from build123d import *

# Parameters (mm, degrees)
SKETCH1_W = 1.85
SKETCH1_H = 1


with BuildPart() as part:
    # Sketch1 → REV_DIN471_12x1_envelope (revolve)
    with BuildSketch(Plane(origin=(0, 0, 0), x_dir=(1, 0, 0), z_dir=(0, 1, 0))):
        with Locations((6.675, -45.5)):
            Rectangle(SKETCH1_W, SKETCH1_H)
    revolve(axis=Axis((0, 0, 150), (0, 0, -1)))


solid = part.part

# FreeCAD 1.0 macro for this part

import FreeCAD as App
import Part
import Sketcher

V = App.Vector


def add_polygon(sketch, points):
    """Adds a closed chain of lines whose ends are joined by coincident constraints."""
    first, n = sketch.GeometryCount, len(points)
    for a, b in zip(points, points[1:] + points[:1]):
        sketch.addGeometry(Part.LineSegment(App.Vector(*a, 0), App.Vector(*b, 0)), False)
    for i in range(n):
        sketch.addConstraint(Sketcher.Constraint("Coincident", first + i, 2, first + (i + 1) % n, 1))

doc = App.newDocument("Part")
body = doc.addObject("PartDesign::Body", "Body")

sketch1 = doc.addObject("Sketcher::SketchObject", "Sketch")
body.addObject(sketch1)
sketch1.AttachmentSupport = (doc.XZ_Plane, [""])
sketch1.MapMode = "FlatFace"
add_polygon(sketch1, [(5.75, 45), (5.75, 46), (7.6, 46), (7.6, 45)])
sketch1.addConstraint(Sketcher.Constraint("Vertical", 0))
sketch1.addConstraint(Sketcher.Constraint("Horizontal", 1))
sketch1.addConstraint(Sketcher.Constraint("Vertical", 2))
sketch1.addConstraint(Sketcher.Constraint("Horizontal", 3))
sketch1.addConstraint(Sketcher.Constraint("DistanceY", 0, 1, 0, 2, 1.0))
sketch1.addConstraint(Sketcher.Constraint("DistanceY", -1, 1, 0, 2, 46.0))
sketch1.addConstraint(Sketcher.Constraint("DistanceX", 1, 1, 1, 2, 1.85))
sketch1.addConstraint(Sketcher.Constraint("DistanceX", -1, 1, 1, 2, 7.6))
revolution = doc.addObject("PartDesign::Revolution", "Revolution")
body.addObject(revolution)
revolution.Profile = sketch1
revolution.ReferenceAxis = (sketch1, ["V_Axis"])
revolution.Angle = 360

doc.recompute()
